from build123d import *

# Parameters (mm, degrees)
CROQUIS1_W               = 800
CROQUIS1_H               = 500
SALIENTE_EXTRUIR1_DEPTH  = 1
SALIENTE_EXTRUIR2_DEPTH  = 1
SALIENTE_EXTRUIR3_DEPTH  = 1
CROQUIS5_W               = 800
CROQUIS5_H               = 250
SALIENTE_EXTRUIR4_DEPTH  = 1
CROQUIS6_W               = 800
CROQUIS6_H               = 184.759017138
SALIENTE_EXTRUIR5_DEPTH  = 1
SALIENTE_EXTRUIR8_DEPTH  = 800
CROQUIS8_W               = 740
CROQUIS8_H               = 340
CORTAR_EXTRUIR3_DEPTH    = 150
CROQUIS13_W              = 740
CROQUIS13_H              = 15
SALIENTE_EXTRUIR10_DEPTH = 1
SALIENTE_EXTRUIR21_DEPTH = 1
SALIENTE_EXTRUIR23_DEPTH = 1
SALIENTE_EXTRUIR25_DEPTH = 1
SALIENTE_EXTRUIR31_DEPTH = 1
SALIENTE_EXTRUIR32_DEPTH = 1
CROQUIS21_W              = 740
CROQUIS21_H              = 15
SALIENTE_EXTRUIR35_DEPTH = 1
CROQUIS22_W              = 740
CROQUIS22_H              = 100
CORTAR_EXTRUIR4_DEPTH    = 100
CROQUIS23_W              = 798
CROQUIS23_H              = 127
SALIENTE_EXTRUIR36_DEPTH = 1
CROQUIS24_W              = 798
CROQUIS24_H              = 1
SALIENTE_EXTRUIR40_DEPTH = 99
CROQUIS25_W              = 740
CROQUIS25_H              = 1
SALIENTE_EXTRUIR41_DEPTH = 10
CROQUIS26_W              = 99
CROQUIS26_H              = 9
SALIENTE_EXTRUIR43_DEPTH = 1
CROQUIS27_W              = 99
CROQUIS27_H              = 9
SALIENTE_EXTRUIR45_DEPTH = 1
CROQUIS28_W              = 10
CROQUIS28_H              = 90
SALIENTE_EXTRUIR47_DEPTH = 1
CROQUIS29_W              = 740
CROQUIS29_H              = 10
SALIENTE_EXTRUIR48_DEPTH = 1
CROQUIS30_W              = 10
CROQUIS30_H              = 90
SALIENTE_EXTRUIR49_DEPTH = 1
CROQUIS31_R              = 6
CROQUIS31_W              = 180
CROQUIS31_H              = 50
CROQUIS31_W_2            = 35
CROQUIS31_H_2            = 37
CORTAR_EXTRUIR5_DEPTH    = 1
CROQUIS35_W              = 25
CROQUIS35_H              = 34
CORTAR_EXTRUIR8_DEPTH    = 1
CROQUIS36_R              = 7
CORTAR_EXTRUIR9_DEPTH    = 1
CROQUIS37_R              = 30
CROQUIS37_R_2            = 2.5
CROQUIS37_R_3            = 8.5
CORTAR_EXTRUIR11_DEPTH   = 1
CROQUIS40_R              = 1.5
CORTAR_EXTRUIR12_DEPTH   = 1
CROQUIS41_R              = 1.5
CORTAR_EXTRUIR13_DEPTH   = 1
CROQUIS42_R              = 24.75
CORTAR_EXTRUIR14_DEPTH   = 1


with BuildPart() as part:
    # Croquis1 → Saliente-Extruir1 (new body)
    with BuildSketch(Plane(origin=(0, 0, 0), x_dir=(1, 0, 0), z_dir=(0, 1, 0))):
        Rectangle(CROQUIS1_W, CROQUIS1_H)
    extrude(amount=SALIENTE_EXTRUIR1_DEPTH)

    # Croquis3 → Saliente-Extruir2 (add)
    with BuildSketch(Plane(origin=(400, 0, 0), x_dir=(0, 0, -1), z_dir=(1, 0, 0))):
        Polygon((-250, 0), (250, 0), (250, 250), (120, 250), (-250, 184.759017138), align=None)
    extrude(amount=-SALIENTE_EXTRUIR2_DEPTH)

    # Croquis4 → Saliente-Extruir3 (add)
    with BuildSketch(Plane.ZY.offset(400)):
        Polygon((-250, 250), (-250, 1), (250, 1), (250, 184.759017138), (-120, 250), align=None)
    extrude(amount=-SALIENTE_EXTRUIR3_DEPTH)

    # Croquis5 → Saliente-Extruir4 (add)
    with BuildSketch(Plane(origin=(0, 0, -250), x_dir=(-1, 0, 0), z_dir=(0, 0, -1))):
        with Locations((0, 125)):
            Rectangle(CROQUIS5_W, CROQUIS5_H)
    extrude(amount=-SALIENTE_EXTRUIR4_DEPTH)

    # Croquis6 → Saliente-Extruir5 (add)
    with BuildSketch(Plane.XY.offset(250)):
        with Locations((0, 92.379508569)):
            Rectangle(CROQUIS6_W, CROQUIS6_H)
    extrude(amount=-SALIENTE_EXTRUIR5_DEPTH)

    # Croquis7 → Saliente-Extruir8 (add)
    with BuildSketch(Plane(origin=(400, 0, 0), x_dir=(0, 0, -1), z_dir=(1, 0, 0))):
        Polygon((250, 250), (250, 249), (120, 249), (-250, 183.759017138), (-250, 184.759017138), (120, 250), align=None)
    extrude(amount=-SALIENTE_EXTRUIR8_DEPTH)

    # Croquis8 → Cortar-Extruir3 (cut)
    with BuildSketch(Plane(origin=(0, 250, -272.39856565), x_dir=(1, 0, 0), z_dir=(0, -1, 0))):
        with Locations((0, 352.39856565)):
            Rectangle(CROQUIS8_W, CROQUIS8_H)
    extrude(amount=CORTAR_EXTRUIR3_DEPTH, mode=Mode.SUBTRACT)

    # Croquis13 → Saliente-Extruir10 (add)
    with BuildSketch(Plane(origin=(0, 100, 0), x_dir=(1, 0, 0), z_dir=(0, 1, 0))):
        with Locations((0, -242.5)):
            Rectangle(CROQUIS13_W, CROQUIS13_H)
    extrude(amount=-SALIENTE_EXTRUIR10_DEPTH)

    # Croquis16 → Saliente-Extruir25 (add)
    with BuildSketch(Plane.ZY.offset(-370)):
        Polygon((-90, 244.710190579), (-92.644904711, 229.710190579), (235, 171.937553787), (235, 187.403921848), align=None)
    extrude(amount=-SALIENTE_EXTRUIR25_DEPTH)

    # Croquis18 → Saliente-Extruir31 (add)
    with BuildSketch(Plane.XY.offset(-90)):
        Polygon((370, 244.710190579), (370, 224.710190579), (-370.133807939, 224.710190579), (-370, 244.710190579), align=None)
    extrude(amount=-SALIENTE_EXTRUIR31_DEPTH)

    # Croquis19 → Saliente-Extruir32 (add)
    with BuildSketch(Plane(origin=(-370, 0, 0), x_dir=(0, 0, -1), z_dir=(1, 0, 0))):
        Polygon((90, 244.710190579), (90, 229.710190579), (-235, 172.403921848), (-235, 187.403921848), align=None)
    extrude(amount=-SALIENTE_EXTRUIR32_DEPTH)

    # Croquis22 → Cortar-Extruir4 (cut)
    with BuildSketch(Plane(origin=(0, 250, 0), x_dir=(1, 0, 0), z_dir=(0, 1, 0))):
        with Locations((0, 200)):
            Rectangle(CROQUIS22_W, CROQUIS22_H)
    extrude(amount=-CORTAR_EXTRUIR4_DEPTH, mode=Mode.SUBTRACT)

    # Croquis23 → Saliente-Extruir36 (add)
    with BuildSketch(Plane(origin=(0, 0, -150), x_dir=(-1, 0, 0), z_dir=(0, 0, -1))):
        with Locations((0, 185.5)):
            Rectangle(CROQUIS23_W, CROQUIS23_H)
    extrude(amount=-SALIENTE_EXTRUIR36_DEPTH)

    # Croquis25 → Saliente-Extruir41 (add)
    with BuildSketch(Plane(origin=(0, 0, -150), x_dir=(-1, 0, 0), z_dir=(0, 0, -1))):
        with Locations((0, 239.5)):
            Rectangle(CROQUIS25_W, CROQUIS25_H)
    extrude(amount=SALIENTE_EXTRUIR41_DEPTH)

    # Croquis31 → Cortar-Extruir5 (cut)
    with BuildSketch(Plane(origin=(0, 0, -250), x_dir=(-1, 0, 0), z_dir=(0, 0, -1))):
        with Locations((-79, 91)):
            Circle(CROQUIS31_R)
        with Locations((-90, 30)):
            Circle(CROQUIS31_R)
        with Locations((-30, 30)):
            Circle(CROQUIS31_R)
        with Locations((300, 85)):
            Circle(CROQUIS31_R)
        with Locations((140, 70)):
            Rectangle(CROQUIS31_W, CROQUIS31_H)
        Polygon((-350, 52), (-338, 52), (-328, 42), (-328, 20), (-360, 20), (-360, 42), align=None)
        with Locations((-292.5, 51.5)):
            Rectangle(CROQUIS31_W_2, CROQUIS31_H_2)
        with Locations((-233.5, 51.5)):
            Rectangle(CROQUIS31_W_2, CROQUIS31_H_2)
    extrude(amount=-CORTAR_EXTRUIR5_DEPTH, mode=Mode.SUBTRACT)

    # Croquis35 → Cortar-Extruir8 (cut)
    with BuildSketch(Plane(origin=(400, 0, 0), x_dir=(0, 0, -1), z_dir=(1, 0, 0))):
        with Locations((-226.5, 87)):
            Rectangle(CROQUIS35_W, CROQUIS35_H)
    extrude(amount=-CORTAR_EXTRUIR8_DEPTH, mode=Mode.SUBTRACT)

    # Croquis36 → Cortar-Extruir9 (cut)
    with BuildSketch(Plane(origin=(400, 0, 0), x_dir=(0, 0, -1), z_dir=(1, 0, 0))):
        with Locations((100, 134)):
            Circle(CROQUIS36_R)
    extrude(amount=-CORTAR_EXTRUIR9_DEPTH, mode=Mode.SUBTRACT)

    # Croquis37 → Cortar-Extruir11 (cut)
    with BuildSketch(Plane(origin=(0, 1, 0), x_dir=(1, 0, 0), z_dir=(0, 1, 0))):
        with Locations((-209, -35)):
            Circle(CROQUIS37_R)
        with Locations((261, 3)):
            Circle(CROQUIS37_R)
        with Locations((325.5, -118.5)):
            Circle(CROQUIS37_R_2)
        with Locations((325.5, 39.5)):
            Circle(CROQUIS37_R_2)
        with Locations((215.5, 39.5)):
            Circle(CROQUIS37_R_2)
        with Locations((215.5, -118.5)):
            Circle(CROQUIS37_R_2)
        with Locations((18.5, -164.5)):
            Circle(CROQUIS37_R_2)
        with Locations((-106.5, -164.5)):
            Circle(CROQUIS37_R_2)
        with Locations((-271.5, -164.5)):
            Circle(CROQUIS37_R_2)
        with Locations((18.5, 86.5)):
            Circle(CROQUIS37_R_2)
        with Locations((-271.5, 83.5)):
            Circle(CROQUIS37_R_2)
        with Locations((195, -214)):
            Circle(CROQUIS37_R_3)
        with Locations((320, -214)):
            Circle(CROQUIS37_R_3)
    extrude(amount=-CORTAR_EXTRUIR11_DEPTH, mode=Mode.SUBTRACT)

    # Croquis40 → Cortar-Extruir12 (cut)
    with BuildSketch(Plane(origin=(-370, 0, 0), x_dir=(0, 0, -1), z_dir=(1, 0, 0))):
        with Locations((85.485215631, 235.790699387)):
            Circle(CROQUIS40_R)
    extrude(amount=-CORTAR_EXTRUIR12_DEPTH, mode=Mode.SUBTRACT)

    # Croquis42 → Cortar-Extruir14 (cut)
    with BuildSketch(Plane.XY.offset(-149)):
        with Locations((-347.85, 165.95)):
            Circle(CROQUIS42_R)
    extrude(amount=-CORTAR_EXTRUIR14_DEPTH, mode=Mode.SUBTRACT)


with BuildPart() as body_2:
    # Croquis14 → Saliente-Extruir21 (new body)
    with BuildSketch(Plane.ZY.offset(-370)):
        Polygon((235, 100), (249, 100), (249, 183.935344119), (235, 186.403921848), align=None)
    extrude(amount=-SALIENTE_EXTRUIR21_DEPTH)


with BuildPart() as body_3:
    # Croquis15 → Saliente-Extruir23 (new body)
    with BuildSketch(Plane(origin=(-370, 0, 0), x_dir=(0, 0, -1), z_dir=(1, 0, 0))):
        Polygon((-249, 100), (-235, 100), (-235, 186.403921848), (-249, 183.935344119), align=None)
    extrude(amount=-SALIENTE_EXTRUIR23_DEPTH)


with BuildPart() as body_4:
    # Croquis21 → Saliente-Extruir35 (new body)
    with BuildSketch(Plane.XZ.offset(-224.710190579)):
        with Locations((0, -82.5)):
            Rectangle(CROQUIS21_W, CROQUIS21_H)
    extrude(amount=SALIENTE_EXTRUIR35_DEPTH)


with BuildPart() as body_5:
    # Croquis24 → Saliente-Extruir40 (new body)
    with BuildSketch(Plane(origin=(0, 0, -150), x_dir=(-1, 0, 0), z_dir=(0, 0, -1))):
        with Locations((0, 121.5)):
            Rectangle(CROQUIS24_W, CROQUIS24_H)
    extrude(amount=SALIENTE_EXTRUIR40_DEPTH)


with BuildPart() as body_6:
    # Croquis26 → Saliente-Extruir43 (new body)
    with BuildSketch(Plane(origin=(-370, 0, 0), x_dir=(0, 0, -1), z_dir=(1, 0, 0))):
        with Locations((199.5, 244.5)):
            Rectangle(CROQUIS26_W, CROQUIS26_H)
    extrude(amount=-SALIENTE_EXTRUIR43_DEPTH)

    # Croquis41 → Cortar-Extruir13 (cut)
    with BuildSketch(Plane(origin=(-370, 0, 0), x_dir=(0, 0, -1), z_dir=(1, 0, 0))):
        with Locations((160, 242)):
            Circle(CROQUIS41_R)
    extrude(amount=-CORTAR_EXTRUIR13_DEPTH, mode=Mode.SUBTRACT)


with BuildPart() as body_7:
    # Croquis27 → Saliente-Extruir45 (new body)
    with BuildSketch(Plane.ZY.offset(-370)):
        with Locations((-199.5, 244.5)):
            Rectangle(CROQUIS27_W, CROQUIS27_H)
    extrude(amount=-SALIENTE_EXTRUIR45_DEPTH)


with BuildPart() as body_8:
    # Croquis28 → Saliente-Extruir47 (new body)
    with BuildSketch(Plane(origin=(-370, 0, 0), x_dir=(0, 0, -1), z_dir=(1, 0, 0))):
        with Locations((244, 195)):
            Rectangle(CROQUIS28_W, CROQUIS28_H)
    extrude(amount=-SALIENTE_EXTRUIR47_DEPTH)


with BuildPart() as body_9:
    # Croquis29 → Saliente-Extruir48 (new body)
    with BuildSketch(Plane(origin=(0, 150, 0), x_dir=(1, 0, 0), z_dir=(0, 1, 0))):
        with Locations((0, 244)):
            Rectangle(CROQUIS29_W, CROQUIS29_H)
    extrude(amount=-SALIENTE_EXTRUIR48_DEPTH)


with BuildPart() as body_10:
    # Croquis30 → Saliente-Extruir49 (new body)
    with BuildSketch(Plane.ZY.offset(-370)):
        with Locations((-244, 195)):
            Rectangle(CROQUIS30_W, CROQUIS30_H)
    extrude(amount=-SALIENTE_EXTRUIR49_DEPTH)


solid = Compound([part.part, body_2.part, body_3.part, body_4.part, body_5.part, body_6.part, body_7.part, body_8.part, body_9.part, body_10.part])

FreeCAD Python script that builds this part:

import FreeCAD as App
import Part
import Sketcher
Q = App.Units.Quantity


def add_polygon(sketch, points):
    """Adds a closed chain of lines whose ends are joined by coincident constraints."""
    first, n = sketch.GeometryCount, len(points)
    for a, b in zip(points, points[1:] + points[:1]):
        sketch.addGeometry(Part.LineSegment(App.Vector(*a, 0), App.Vector(*b, 0)), False)
    for i in range(n):
        sketch.addConstraint(Sketcher.Constraint("Coincident", first + i, 2, first + (i + 1) % n, 1))

doc = App.newDocument("Part")
body = doc.addObject("PartDesign::Body", "Body")

sketch1 = body.newObject("Sketcher::SketchObject", "Sketch")
sketch1.AttachmentSupport = (doc.getObject("XZ_Plane"), [""])
sketch1.MapMode = "FlatFace"
add_polygon(sketch1, [(-400, -250), (-400, 250), (400, 250), (400, -250)])
sketch1.addConstraint(Sketcher.Constraint("Vertical", 0))
sketch1.addConstraint(Sketcher.Constraint("Horizontal", 1))
sketch1.addConstraint(Sketcher.Constraint("Vertical", 2))
sketch1.addConstraint(Sketcher.Constraint("Horizontal", 3))
sketch1.addConstraint(Sketcher.Constraint("Symmetric", 0, 2, 2, 2, -1, 1))
sketch1.addConstraint(Sketcher.Constraint("DistanceX", 1, 1, 1, 2, Q("800 mm")))
sketch1.addConstraint(Sketcher.Constraint("DistanceY", 0, 1, 0, 2, Q("500 mm")))
pad1 = body.newObject("PartDesign::Pad", "Pad")
pad1.Profile = sketch1
pad1.Length = 1
pad1.Reversed = True

sketch2 = body.newObject("Sketcher::SketchObject", "Sketch001")
sketch2.AttachmentSupport = (doc.getObject("YZ_Plane"), [""])
sketch2.MapMode = "FlatFace"
sketch2.AttachmentOffset = App.Placement(App.Vector(0, 0, 400), App.Rotation())
add_polygon(sketch2, [(0, 250), (0, -250), (250, -250), (250, -120), (185, 250)])
sketch2.addConstraint(Sketcher.Constraint("Vertical", 0))
sketch2.addConstraint(Sketcher.Constraint("Horizontal", 1))
sketch2.addConstraint(Sketcher.Constraint("Vertical", 2))
sketch2.addConstraint(Sketcher.Constraint("Horizontal", 4))
sketch2.addConstraint(Sketcher.Constraint("Symmetric", 0, 2, 4, 2, -1, 1))
sketch2.addConstraint(Sketcher.Constraint("DistanceX", 1, 1, 1, 2, Q("250 mm")))
sketch2.addConstraint(Sketcher.Constraint("DistanceY", 0, 2, 0, 1, Q("500 mm")))
sketch2.addConstraint(Sketcher.Constraint("DistanceY", 2, 1, 2, 2, Q("130 mm")))
sketch2.addConstraint(Sketcher.Constraint("Angle", 3, Q("100 deg")))
pad2 = body.newObject("PartDesign::Pad", "Pad001")
pad2.Profile = sketch2
pad2.Length = 1
pad2.Reversed = True

sketch3 = body.newObject("Sketcher::SketchObject", "Sketch002")
sketch3.AttachmentSupport = (doc.getObject("YZ_Plane"), [""])
sketch3.MapMode = "FlatFace"
sketch3.AttachmentOffset = App.Placement(App.Vector(0, 0, -400), App.Rotation())
add_polygon(sketch3, [(250, -250), (1, -250), (1, 250), (185, 250), (250, -120)])
sketch3.addConstraint(Sketcher.Constraint("Horizontal", 0))
sketch3.addConstraint(Sketcher.Constraint("Vertical", 1))
sketch3.addConstraint(Sketcher.Constraint("Horizontal", 2))
sketch3.addConstraint(Sketcher.Constraint("Vertical", 4))
sketch3.addConstraint(Sketcher.Constraint("DistanceX", 0, 2, 0, 1, Q("249 mm")))
sketch3.addConstraint(Sketcher.Constraint("DistanceY", 1, 1, 1, 2, Q("500 mm")))
sketch3.addConstraint(Sketcher.Constraint("DistanceY", 4, 2, 4, 1, Q("130 mm")))
sketch3.addConstraint(Sketcher.Constraint("Angle", 3, Q("-80 deg")))
sketch3.addConstraint(Sketcher.Constraint("DistanceX", -1, 1, 0, 2, Q("1 mm")))
sketch3.addConstraint(Sketcher.Constraint("DistanceY", 0, 2, -1, 1, Q("250 mm")))
pad3 = body.newObject("PartDesign::Pad", "Pad002")
pad3.Profile = sketch3
pad3.Length = 1

sketch4 = body.newObject("Sketcher::SketchObject", "Sketch003")
sketch4.AttachmentSupport = (doc.getObject("XY_Plane"), [""])
sketch4.MapMode = "FlatFace"
sketch4.AttachmentOffset = App.Placement(App.Vector(0, 0, -250), App.Rotation())
add_polygon(sketch4, [(400, 250), (400, 0), (-400, 0), (-400, 250)])
sketch4.addConstraint(Sketcher.Constraint("Vertical", 0))
sketch4.addConstraint(Sketcher.Constraint("Horizontal", 1))
sketch4.addConstraint(Sketcher.Constraint("Vertical", 2))
sketch4.addConstraint(Sketcher.Constraint("Horizontal", 3))
sketch4.addConstraint(Sketcher.Constraint("Symmetric", 0, 2, 1, 2, -1, 1))
sketch4.addConstraint(Sketcher.Constraint("DistanceX", 1, 2, 1, 1, Q("800 mm")))
sketch4.addConstraint(Sketcher.Constraint("DistanceY", 0, 2, 0, 1, Q("250 mm")))
pad4 = body.newObject("PartDesign::Pad", "Pad003")
pad4.Profile = sketch4
pad4.Length = 1

sketch5 = body.newObject("Sketcher::SketchObject", "Sketch004")
sketch5.AttachmentSupport = (doc.getObject("XY_Plane"), [""])
sketch5.MapMode = "FlatFace"
sketch5.AttachmentOffset = App.Placement(App.Vector(0, 0, 250), App.Rotation())
add_polygon(sketch5, [(-400, 185), (-400, 0), (400, 0), (400, 185)])
sketch5.addConstraint(Sketcher.Constraint("Vertical", 0))
sketch5.addConstraint(Sketcher.Constraint("Horizontal", 1))
sketch5.addConstraint(Sketcher.Constraint("Vertical", 2))
sketch5.addConstraint(Sketcher.Constraint("Horizontal", 3))
sketch5.addConstraint(Sketcher.Constraint("Symmetric", 0, 2, 1, 2, -1, 1))
sketch5.addConstraint(Sketcher.Constraint("DistanceX", 1, 1, 1, 2, Q("800 mm")))
sketch5.addConstraint(Sketcher.Constraint("DistanceY", 0, 2, 0, 1, Q("184.759017 mm")))
pad5 = body.newObject("PartDesign::Pad", "Pad004")
pad5.Profile = sketch5
pad5.Length = 1
pad5.Reversed = True

sketch6 = body.newObject("Sketcher::SketchObject", "Sketch005")
sketch6.AttachmentSupport = (doc.getObject("YZ_Plane"), [""])
sketch6.MapMode = "FlatFace"
sketch6.AttachmentOffset = App.Placement(App.Vector(0, 0, 400), App.Rotation())
add_polygon(sketch6, [(249, -250), (250, -250), (250, -120), (184.8, 250), (183.8, 250), (249, -120)])
sketch6.addConstraint(Sketcher.Constraint("Horizontal", 0))
sketch6.addConstraint(Sketcher.Constraint("Vertical", 1))
sketch6.addConstraint(Sketcher.Constraint("Horizontal", 3))
sketch6.addConstraint(Sketcher.Constraint("Vertical", 5))
sketch6.addConstraint(Sketcher.Constraint("Parallel", 2, 4))
sketch6.addConstraint(Sketcher.Constraint("Horizontal", 1, 2, 4, 2))
sketch6.addConstraint(Sketcher.Constraint("DistanceX", 0, 1, 0, 2, Q("1 mm")))
sketch6.addConstraint(Sketcher.Constraint("DistanceY", 1, 1, 1, 2, Q("130 mm")))
sketch6.addConstraint(Sketcher.Constraint("Angle", 2, Q("100 deg")))
sketch6.addConstraint(Sketcher.Constraint("DistanceX", -1, 1, 0, 2, Q("250 mm")))
sketch6.addConstraint(Sketcher.Constraint("DistanceY", 0, 2, -1, 1, Q("250 mm")))
sketch6.addConstraint(Sketcher.Constraint("DistanceY", -1, 1, 2, 2, Q("250 mm")))
pad6 = body.newObject("PartDesign::Pad", "Pad005")
pad6.Profile = sketch6
pad6.Length = 800
pad6.Reversed = True

sketch7 = body.newObject("Sketcher::SketchObject", "Sketch006")
sketch7.AttachmentSupport = (doc.getObject("XZ_Plane"), [""])
sketch7.MapMode = "FlatFace"
sketch7.AttachmentOffset = App.Placement(App.Vector(0, 0, -250), App.Rotation())
add_polygon(sketch7, [(-370, 250), (-370, -90), (370, -90), (370, 250)])
sketch7.addConstraint(Sketcher.Constraint("Vertical", 0))
sketch7.addConstraint(Sketcher.Constraint("Horizontal", 1))
sketch7.addConstraint(Sketcher.Constraint("Vertical", 2))
sketch7.addConstraint(Sketcher.Constraint("Horizontal", 3))
sketch7.addConstraint(Sketcher.Constraint("DistanceX", 1, 1, 1, 2, Q("740 mm")))
sketch7.addConstraint(Sketcher.Constraint("DistanceY", 0, 2, 0, 1, Q("340 mm")))
sketch7.addConstraint(Sketcher.Constraint("DistanceX", 0, 2, -1, 1, Q("370 mm")))
sketch7.addConstraint(Sketcher.Constraint("DistanceY", 0, 2, -1, 1, Q("90 mm")))
pocket1 = body.newObject("PartDesign::Pocket", "Pocket")
pocket1.Profile = sketch7
pocket1.Length = 150
pocket1.Reversed = True

sketch8 = body.newObject("Sketcher::SketchObject", "Sketch007")
sketch8.AttachmentSupport = (doc.getObject("XZ_Plane"), [""])
sketch8.MapMode = "FlatFace"
sketch8.AttachmentOffset = App.Placement(App.Vector(0, 0, -100), App.Rotation())
add_polygon(sketch8, [(-370, 235), (-370, 250), (370, 250), (370, 235)])
sketch8.addConstraint(Sketcher.Constraint("Vertical", 0))
sketch8.addConstraint(Sketcher.Constraint("Horizontal", 1))
sketch8.addConstraint(Sketcher.Constraint("Vertical", 2))
sketch8.addConstraint(Sketcher.Constraint("Horizontal", 3))
sketch8.addConstraint(Sketcher.Constraint("DistanceX", 1, 1, 1, 2, Q("740 mm")))
sketch8.addConstraint(Sketcher.Constraint("DistanceY", 0, 1, 0, 2, Q("15 mm")))
sketch8.addConstraint(Sketcher.Constraint("DistanceX", 0, 2, -1, 1, Q("370 mm")))
sketch8.addConstraint(Sketcher.Constraint("DistanceY", -1, 1, 0, 2, Q("250 mm")))
pad7 = body.newObject("PartDesign::Pad", "Pad006")
pad7.Profile = sketch8
pad7.Length = 1

sketch9 = body.newObject("Sketcher::SketchObject", "Sketch008")
sketch9.AttachmentSupport = (doc.getObject("YZ_Plane"), [""])
sketch9.MapMode = "FlatFace"
sketch9.AttachmentOffset = App.Placement(App.Vector(0, 0, 370), App.Rotation())
add_polygon(sketch9, [(245, -90), (230, -93), (172, 235), (187, 235)])
sketch9.addConstraint(Sketcher.Constraint("Horizontal", 2))
sketch9.addConstraint(Sketcher.Constraint("Perpendicular", 0, 1))
sketch9.addConstraint(Sketcher.Constraint("Parallel", 1, 3))
sketch9.addConstraint(Sketcher.Constraint("Angle", 0, Q("-170 deg")))
sketch9.addConstraint(Sketcher.Constraint("DistanceY", -1, 1, 1, 2, Q("235 mm")))
sketch9.addConstraint(Sketcher.Constraint("DistanceY", 3, 2, -1, 1, Q("90 mm")))
sketch9.addConstraint(Sketcher.Constraint("DistanceX", 0, 2, 3, 2, Q("15 mm")))
sketch9.addConstraint(Sketcher.Constraint("DistanceX", -1, 1, 0, 2, Q("229.710191 mm")))
pad8 = body.newObject("PartDesign::Pad", "Pad007")
pad8.Profile = sketch9
pad8.Length = 1

sketch10 = body.newObject("Sketcher::SketchObject", "Sketch009")
sketch10.AttachmentSupport = (doc.getObject("XY_Plane"), [""])
sketch10.MapMode = "FlatFace"
sketch10.AttachmentOffset = App.Placement(App.Vector(0, 0, -90), App.Rotation())
add_polygon(sketch10, [(370, 225), (370, 245), (-370, 245), (-370, 225)])
sketch10.addConstraint(Sketcher.Constraint("Vertical", 0))
sketch10.addConstraint(Sketcher.Constraint("Horizontal", 1))
sketch10.addConstraint(Sketcher.Constraint("Horizontal", 3))
sketch10.addConstraint(Sketcher.Constraint("DistanceX", 1, 2, 1, 1, Q("740 mm")))
sketch10.addConstraint(Sketcher.Constraint("DistanceY", 0, 1, 0, 2, Q("20 mm")))
sketch10.addConstraint(Sketcher.Constraint("DistanceX", -1, 1, 0, 2, Q("370 mm")))
sketch10.addConstraint(Sketcher.Constraint("DistanceX", 3, 1, 3, 2, Q("740.133808 mm")))
sketch10.addConstraint(Sketcher.Constraint("DistanceY", -1, 1, 0, 2, Q("244.710191 mm")))
pad9 = body.newObject("PartDesign::Pad", "Pad008")
pad9.Profile = sketch10
pad9.Length = 1
pad9.Reversed = True

sketch11 = body.newObject("Sketcher::SketchObject", "Sketch010")
sketch11.AttachmentSupport = (doc.getObject("YZ_Plane"), [""])
sketch11.MapMode = "FlatFace"
sketch11.AttachmentOffset = App.Placement(App.Vector(0, 0, -370), App.Rotation())
add_polygon(sketch11, [(230, -90), (245, -90), (187, 235), (172, 235)])
sketch11.addConstraint(Sketcher.Constraint("Horizontal", 0))
sketch11.addConstraint(Sketcher.Constraint("Horizontal", 2))
sketch11.addConstraint(Sketcher.Constraint("Parallel", 1, 3))
sketch11.addConstraint(Sketcher.Constraint("DistanceX", 0, 1, 0, 2, Q("15 mm")))
sketch11.addConstraint(Sketcher.Constraint("Angle", 1, Q("100 deg")))
sketch11.addConstraint(Sketcher.Constraint("DistanceY", 0, 2, -1, 1, Q("90 mm")))
sketch11.addConstraint(Sketcher.Constraint("DistanceY", -1, 1, 1, 2, Q("235 mm")))
sketch11.addConstraint(Sketcher.Constraint("DistanceX", -1, 1, 0, 2, Q("244.710191 mm")))
pad10 = body.newObject("PartDesign::Pad", "Pad009")
pad10.Profile = sketch11
pad10.Length = 1
pad10.Reversed = True

sketch12 = body.newObject("Sketcher::SketchObject", "Sketch011")
sketch12.AttachmentSupport = (doc.getObject("XZ_Plane"), [""])
sketch12.MapMode = "FlatFace"
sketch12.AttachmentOffset = App.Placement(App.Vector(0, 0, -250), App.Rotation())
add_polygon(sketch12, [(-370, -250), (-370, -150), (370, -150), (370, -250)])
sketch12.addConstraint(Sketcher.Constraint("Vertical", 0))
sketch12.addConstraint(Sketcher.Constraint("Horizontal", 1))
sketch12.addConstraint(Sketcher.Constraint("Vertical", 2))
sketch12.addConstraint(Sketcher.Constraint("Horizontal", 3))
sketch12.addConstraint(Sketcher.Constraint("DistanceX", 1, 1, 1, 2, Q("740 mm")))
sketch12.addConstraint(Sketcher.Constraint("DistanceY", 0, 1, 0, 2, Q("100 mm")))
sketch12.addConstraint(Sketcher.Constraint("DistanceX", 0, 2, -1, 1, Q("370 mm")))
sketch12.addConstraint(Sketcher.Constraint("DistanceY", 0, 2, -1, 1, Q("150 mm")))
pocket2 = body.newObject("PartDesign::Pocket", "Pocket001")
pocket2.Profile = sketch12
pocket2.Length = 100
pocket2.Reversed = True

sketch13 = body.newObject("Sketcher::SketchObject", "Sketch012")
sketch13.AttachmentSupport = (doc.getObject("XY_Plane"), [""])
sketch13.MapMode = "FlatFace"
sketch13.AttachmentOffset = App.Placement(App.Vector(0, 0, -150), App.Rotation())
add_polygon(sketch13, [(399, 249), (399, 122), (-399, 122), (-399, 249)])
sketch13.addConstraint(Sketcher.Constraint("Vertical", 0))
sketch13.addConstraint(Sketcher.Constraint("Horizontal", 1))
sketch13.addConstraint(Sketcher.Constraint("Vertical", 2))
sketch13.addConstraint(Sketcher.Constraint("Horizontal", 3))
sketch13.addConstraint(Sketcher.Constraint("DistanceX", 1, 2, 1, 1, Q("798 mm")))
sketch13.addConstraint(Sketcher.Constraint("DistanceY", 0, 2, 0, 1, Q("127 mm")))
sketch13.addConstraint(Sketcher.Constraint("DistanceX", -1, 1, 0, 2, Q("399 mm")))
sketch13.addConstraint(Sketcher.Constraint("DistanceY", -1, 1, 0, 2, Q("122 mm")))
pad11 = body.newObject("PartDesign::Pad", "Pad010")
pad11.Profile = sketch13
pad11.Length = 1

sketch14 = body.newObject("Sketcher::SketchObject", "Sketch013")
sketch14.AttachmentSupport = (doc.getObject("XY_Plane"), [""])
sketch14.MapMode = "FlatFace"
sketch14.AttachmentOffset = App.Placement(App.Vector(0, 0, -150), App.Rotation())
add_polygon(sketch14, [(370, 240), (370, 239), (-370, 239), (-370, 240)])
sketch14.addConstraint(Sketcher.Constraint("Vertical", 0))
sketch14.addConstraint(Sketcher.Constraint("Horizontal", 1))
sketch14.addConstraint(Sketcher.Constraint("Vertical", 2))
sketch14.addConstraint(Sketcher.Constraint("Horizontal", 3))
sketch14.addConstraint(Sketcher.Constraint("DistanceX", 1, 2, 1, 1, Q("740 mm")))
sketch14.addConstraint(Sketcher.Constraint("DistanceY", 0, 2, 0, 1, Q("1 mm")))
sketch14.addConstraint(Sketcher.Constraint("DistanceX", -1, 1, 0, 2, Q("370 mm")))
sketch14.addConstraint(Sketcher.Constraint("DistanceY", -1, 1, 0, 2, Q("239 mm")))
pad12 = body.newObject("PartDesign::Pad", "Pad011")
pad12.Profile = sketch14
pad12.Length = 10
pad12.Reversed = True

sketch15 = body.newObject("Sketcher::SketchObject", "Sketch014")
sketch15.AttachmentSupport = (doc.getObject("XY_Plane"), [""])
sketch15.MapMode = "FlatFace"
sketch15.AttachmentOffset = App.Placement(App.Vector(0, 0, -250), App.Rotation())
sketch15.addGeometry(Part.Circle(App.Vector(79, 91, 0), App.Vector(0, 0, 1), 6), False)
sketch15.addGeometry(Part.Circle(App.Vector(90, 30, 0), App.Vector(0, 0, 1), 6), False)
sketch15.addGeometry(Part.Circle(App.Vector(30, 30, 0), App.Vector(0, 0, 1), 6), False)
sketch15.addGeometry(Part.Circle(App.Vector(-300, 85, 0), App.Vector(0, 0, 1), 6), False)
add_polygon(sketch15, [(-50, 95), (-50, 45), (-230, 45), (-230, 95)])
add_polygon(sketch15, [(338, 52), (350, 52), (360, 42), (360, 20), (328, 20), (328, 42)])
add_polygon(sketch15, [(310, 70), (310, 33), (275, 33), (275, 70)])
add_polygon(sketch15, [(251, 70), (251, 33), (216, 33), (216, 70)])
sketch15.addConstraint(Sketcher.Constraint("Vertical", 4))
sketch15.addConstraint(Sketcher.Constraint("Horizontal", 5))
sketch15.addConstraint(Sketcher.Constraint("Vertical", 6))
sketch15.addConstraint(Sketcher.Constraint("Horizontal", 7))
sketch15.addConstraint(Sketcher.Constraint("Horizontal", 8))
sketch15.addConstraint(Sketcher.Constraint("Vertical", 10))
sketch15.addConstraint(Sketcher.Constraint("Horizontal", 11))
sketch15.addConstraint(Sketcher.Constraint("Vertical", 12))
sketch15.addConstraint(Sketcher.Constraint("Vertical", 14))
sketch15.addConstraint(Sketcher.Constraint("Horizontal", 15))
sketch15.addConstraint(Sketcher.Constraint("Vertical", 16))
sketch15.addConstraint(Sketcher.Constraint("Horizontal", 17))
sketch15.addConstraint(Sketcher.Constraint("Vertical", 18))
sketch15.addConstraint(Sketcher.Constraint("Horizontal", 19))
sketch15.addConstraint(Sketcher.Constraint("Vertical", 20))
sketch15.addConstraint(Sketcher.Constraint("Horizontal", 21))
sketch15.addConstraint(Sketcher.Constraint("Equal", 0, 1))
sketch15.addConstraint(Sketcher.Constraint("Equal", 1, 2))
sketch15.addConstraint(Sketcher.Constraint("Equal", 2, 3))
sketch15.addConstraint(Sketcher.Constraint("Perpendicular", 9, 13))
sketch15.addConstraint(Sketcher.Constraint("Horizontal", 1, 3, 2, 3))
sketch15.addConstraint(Sketcher.Constraint("Horizontal", 9, 2, 12, 2))
sketch15.addConstraint(Sketcher.Constraint("Horizontal", 15, 2, 18, 2))
sketch15.addConstraint(Sketcher.Constraint("Horizontal", 17, 2, 20, 2))
sketch15.addConstraint(Sketcher.Constraint("Equal", 17, 19))
sketch15.addConstraint(Sketcher.Constraint("Equal", 9, 13))
sketch15.addConstraint(Sketcher.Constraint("Diameter", 0, Q("12 mm")))
sketch15.addConstraint(Sketcher.Constraint("DistanceX", 5, 2, 5, 1, Q("180 mm")))
sketch15.addConstraint(Sketcher.Constraint("DistanceX", 8, 1, 8, 2, Q("12 mm")))
sketch15.addConstraint(Sketcher.Constraint("DistanceX", 11, 2, 11, 1, Q("32 mm")))
sketch15.addConstraint(Sketcher.Constraint("DistanceX", 15, 2, 15, 1, Q("35 mm")))
sketch15.addConstraint(Sketcher.Constraint("DistanceY", 4, 2, 4, 1, Q("50 mm")))
sketch15.addConstraint(Sketcher.Constraint("DistanceY", 10, 2, 10, 1, Q("22 mm")))
sketch15.addConstraint(Sketcher.Constraint("DistanceY", 14, 2, 14, 1, Q("37 mm")))
sketch15.addConstraint(Sketcher.Constraint("DistanceX", -1, 1, 0, 3, Q("79 mm")))
sketch15.addConstraint(Sketcher.Constraint("DistanceY", -1, 1, 0, 3, Q("91 mm")))
sketch15.addConstraint(Sketcher.Constraint("DistanceX", -1, 1, 1, 3, Q("90 mm")))
sketch15.addConstraint(Sketcher.Constraint("DistanceY", -1, 1, 1, 3, Q("30 mm")))
sketch15.addConstraint(Sketcher.Constraint("DistanceX", -1, 1, 2, 3, Q("30 mm")))
sketch15.addConstraint(Sketcher.Constraint("DistanceX", 3, 3, -1, 1, Q("300 mm")))
sketch15.addConstraint(Sketcher.Constraint("DistanceY", -1, 1, 3, 3, Q("85 mm")))
sketch15.addConstraint(Sketcher.Constraint("DistanceX", 4, 2, -1, 1, Q("50 mm")))
sketch15.addConstraint(Sketcher.Constraint("DistanceY", -1, 1, 4, 2, Q("45 mm")))
sketch15.addConstraint(Sketcher.Constraint("DistanceX", -1, 1, 8, 2, Q("350 mm")))
sketch15.addConstraint(Sketcher.Constraint("DistanceY", -1, 1, 8, 2, Q("52 mm")))
sketch15.addConstraint(Sketcher.Constraint("DistanceX", -1, 1, 14, 2, Q("310 mm")))
sketch15.addConstraint(Sketcher.Constraint("DistanceY", -1, 1, 14, 2, Q("33 mm")))
sketch15.addConstraint(Sketcher.Constraint("DistanceX", -1, 1, 18, 2, Q("251 mm")))
pocket3 = body.newObject("PartDesign::Pocket", "Pocket002")
pocket3.Profile = sketch15
pocket3.Length = 1
pocket3.Reversed = True

sketch16 = body.newObject("Sketcher::SketchObject", "Sketch015")
sketch16.AttachmentSupport = (doc.getObject("YZ_Plane"), [""])
sketch16.MapMode = "FlatFace"
sketch16.AttachmentOffset = App.Placement(App.Vector(0, 0, 400), App.Rotation())
add_polygon(sketch16, [(104, 239), (70, 239), (70, 214), (104, 214)])
sketch16.addConstraint(Sketcher.Constraint("Horizontal", 0))
sketch16.addConstraint(Sketcher.Constraint("Vertical", 1))
sketch16.addConstraint(Sketcher.Constraint("Horizontal", 2))
sketch16.addConstraint(Sketcher.Constraint("Vertical", 3))
sketch16.addConstraint(Sketcher.Constraint("DistanceX", 0, 2, 0, 1, Q("34 mm")))
sketch16.addConstraint(Sketcher.Constraint("DistanceY", 1, 2, 1, 1, Q("25 mm")))
sketch16.addConstraint(Sketcher.Constraint("DistanceX", -1, 1, 0, 2, Q("70 mm")))
sketch16.addConstraint(Sketcher.Constraint("DistanceY", -1, 1, 0, 2, Q("239 mm")))
pocket4 = body.newObject("PartDesign::Pocket", "Pocket003")
pocket4.Profile = sketch16
pocket4.Length = 1

sketch17 = body.newObject("Sketcher::SketchObject", "Sketch016")
sketch17.AttachmentSupport = (doc.getObject("YZ_Plane"), [""])
sketch17.MapMode = "FlatFace"
sketch17.AttachmentOffset = App.Placement(App.Vector(0, 0, 400), App.Rotation())
sketch17.addGeometry(Part.Circle(App.Vector(134, -100, 0), App.Vector(0, 0, 1), 7), False)
sketch17.addConstraint(Sketcher.Constraint("Diameter", 0, Q("14 mm")))
sketch17.addConstraint(Sketcher.Constraint("DistanceX", -1, 1, 0, 3, Q("134 mm")))
sketch17.addConstraint(Sketcher.Constraint("DistanceY", 0, 3, -1, 1, Q("100 mm")))
pocket5 = body.newObject("PartDesign::Pocket", "Pocket004")
pocket5.Profile = sketch17
pocket5.Length = 1

sketch18 = body.newObject("Sketcher::SketchObject", "Sketch017")
sketch18.AttachmentSupport = (doc.getObject("XZ_Plane"), [""])
sketch18.MapMode = "FlatFace"
sketch18.AttachmentOffset = App.Placement(App.Vector(0, 0, -1), App.Rotation())
sketch18.addGeometry(Part.Circle(App.Vector(-209, 35, 0), App.Vector(0, 0, 1), 30), False)
sketch18.addGeometry(Part.Circle(App.Vector(261, -3, 0), App.Vector(0, 0, 1), 30), False)
sketch18.addGeometry(Part.Circle(App.Vector(325.5, 118.5, 0), App.Vector(0, 0, 1), 2.5), False)
sketch18.addGeometry(Part.Circle(App.Vector(325.5, -39.5, 0), App.Vector(0, 0, 1), 2.5), False)
sketch18.addGeometry(Part.Circle(App.Vector(215.5, -39.5, 0), App.Vector(0, 0, 1), 2.5), False)
sketch18.addGeometry(Part.Circle(App.Vector(215.5, 118.5, 0), App.Vector(0, 0, 1), 2.5), False)
sketch18.addGeometry(Part.Circle(App.Vector(18.5, 164.5, 0), App.Vector(0, 0, 1), 2.5), False)
sketch18.addGeometry(Part.Circle(App.Vector(-106.5, 164.5, 0), App.Vector(0, 0, 1), 2.5), False)
sketch18.addGeometry(Part.Circle(App.Vector(-271.5, 164.5, 0), App.Vector(0, 0, 1), 2.5), False)
sketch18.addGeometry(Part.Circle(App.Vector(18.5, -86.5, 0), App.Vector(0, 0, 1), 2.5), False)
sketch18.addGeometry(Part.Circle(App.Vector(-271.5, -83.5, 0), App.Vector(0, 0, 1), 2.5), False)
sketch18.addGeometry(Part.Circle(App.Vector(195, 214, 0), App.Vector(0, 0, 1), 8.5), False)
sketch18.addGeometry(Part.Circle(App.Vector(320, 214, 0), App.Vector(0, 0, 1), 8.5), False)
sketch18.addConstraint(Sketcher.Constraint("Equal", 0, 1))
sketch18.addConstraint(Sketcher.Constraint("Equal", 2, 3))
sketch18.addConstraint(Sketcher.Constraint("Equal", 3, 4))
sketch18.addConstraint(Sketcher.Constraint("Equal", 4, 5))
sketch18.addConstraint(Sketcher.Constraint("Equal", 5, 6))
sketch18.addConstraint(Sketcher.Constraint("Equal", 6, 7))
sketch18.addConstraint(Sketcher.Constraint("Equal", 7, 8))
sketch18.addConstraint(Sketcher.Constraint("Equal", 8, 9))
sketch18.addConstraint(Sketcher.Constraint("Equal", 9, 10))
sketch18.addConstraint(Sketcher.Constraint("Equal", 11, 12))
sketch18.addConstraint(Sketcher.Constraint("Horizontal", 3, 3, 4, 3))
sketch18.addConstraint(Sketcher.Constraint("Horizontal", 2, 3, 5, 3))
sketch18.addConstraint(Sketcher.Constraint("Horizontal", 6, 3, 7, 3))
sketch18.addConstraint(Sketcher.Constraint("Horizontal", 7, 3, 8, 3))
sketch18.addConstraint(Sketcher.Constraint("Horizontal", 11, 3, 12, 3))
sketch18.addConstraint(Sketcher.Constraint("Vertical", 2, 3, 3, 3))
sketch18.addConstraint(Sketcher.Constraint("Vertical", 4, 3, 5, 3))
sketch18.addConstraint(Sketcher.Constraint("Vertical", 6, 3, 9, 3))
sketch18.addConstraint(Sketcher.Constraint("Vertical", 8, 3, 10, 3))
sketch18.addConstraint(Sketcher.Constraint("Diameter", 0, Q("60 mm")))
sketch18.addConstraint(Sketcher.Constraint("Diameter", 2, Q("5 mm")))
sketch18.addConstraint(Sketcher.Constraint("Diameter", 11, Q("17 mm")))
sketch18.addConstraint(Sketcher.Constraint("DistanceX", 0, 3, -1, 1, Q("209 mm")))
sketch18.addConstraint(Sketcher.Constraint("DistanceY", -1, 1, 0, 3, Q("35 mm")))
sketch18.addConstraint(Sketcher.Constraint("DistanceX", -1, 1, 1, 3, Q("261 mm")))
sketch18.addConstraint(Sketcher.Constraint("DistanceY", 1, 3, -1, 1, Q("3 mm")))
sketch18.addConstraint(Sketcher.Constraint("DistanceX", -1, 1, 11, 3, Q("195 mm")))
sketch18.addConstraint(Sketcher.Constraint("DistanceY", -1, 1, 11, 3, Q("214 mm")))
sketch18.addConstraint(Sketcher.Constraint("DistanceX", -1, 1, 12, 3, Q("320 mm")))
sketch18.addConstraint(Sketcher.Constraint("DistanceY", 3, 3, 2, 3, Q("158 mm")))
sketch18.addConstraint(Sketcher.Constraint("DistanceX", 4, 3, 3, 3, Q("110 mm")))
sketch18.addConstraint(Sketcher.Constraint("DistanceX", 6, 3, 5, 3, Q("197 mm")))
sketch18.addConstraint(Sketcher.Constraint("DistanceY", 5, 3, 6, 3, Q("46 mm")))
sketch18.addConstraint(Sketcher.Constraint("DistanceX", 7, 3, 6, 3, Q("125 mm")))
sketch18.addConstraint(Sketcher.Constraint("DistanceX", 8, 3, 7, 3, Q("165 mm")))
sketch18.addConstraint(Sketcher.Constraint("DistanceY", 9, 3, 4, 3, Q("47 mm")))
sketch18.addConstraint(Sketcher.Constraint("DistanceY", 10, 3, 8, 3, Q("248 mm")))
sketch18.addConstraint(Sketcher.Constraint("DistanceX", -1, 1, 2, 3, Q("325.5 mm")))
sketch18.addConstraint(Sketcher.Constraint("DistanceY", -1, 1, 2, 3, Q("118.5 mm")))
pocket6 = body.newObject("PartDesign::Pocket", "Pocket005")
pocket6.Profile = sketch18
pocket6.Length = 1
pocket6.Reversed = True

sketch19 = body.newObject("Sketcher::SketchObject", "Sketch018")
sketch19.AttachmentSupport = (doc.getObject("YZ_Plane"), [""])
sketch19.MapMode = "FlatFace"
sketch19.AttachmentOffset = App.Placement(App.Vector(0, 0, -370), App.Rotation())
sketch19.addGeometry(Part.Circle(App.Vector(235.8, -85.5, 0), App.Vector(0, 0, 1), 1.5), False)
sketch19.addConstraint(Sketcher.Constraint("Diameter", 0, Q("3 mm")))
sketch19.addConstraint(Sketcher.Constraint("DistanceX", -1, 1, 0, 3, Q("235.790699 mm")))
sketch19.addConstraint(Sketcher.Constraint("DistanceY", 0, 3, -1, 1, Q("85.485216 mm")))
pocket7 = body.newObject("PartDesign::Pocket", "Pocket006")
pocket7.Profile = sketch19
pocket7.Length = 1

sketch20 = body.newObject("Sketcher::SketchObject", "Sketch019")
sketch20.AttachmentSupport = (doc.getObject("XY_Plane"), [""])
sketch20.MapMode = "FlatFace"
sketch20.AttachmentOffset = App.Placement(App.Vector(0, 0, -149), App.Rotation())
sketch20.addGeometry(Part.Circle(App.Vector(-348, 166, 0), App.Vector(0, 0, 1), 25), False)
sketch20.addConstraint(Sketcher.Constraint("Diameter", 0, Q("49.5 mm")))
sketch20.addConstraint(Sketcher.Constraint("DistanceX", 0, 3, -1, 1, Q("347.85 mm")))
sketch20.addConstraint(Sketcher.Constraint("DistanceY", -1, 1, 0, 3, Q("165.95 mm")))
pocket8 = body.newObject("PartDesign::Pocket", "Pocket007")
pocket8.Profile = sketch20
pocket8.Length = 1
body2 = doc.addObject("PartDesign::Body", "Body001")

sketch21 = body2.newObject("Sketcher::SketchObject", "Sketch020")
sketch21.AttachmentSupport = (doc.getObject("YZ_Plane001"), [""])
sketch21.MapMode = "FlatFace"
sketch21.AttachmentOffset = App.Placement(App.Vector(0, 0, 370), App.Rotation())
add_polygon(sketch21, [(100, 235), (100, 249), (184, 249), (186, 235)])
sketch21.addConstraint(Sketcher.Constraint("Vertical", 0))
sketch21.addConstraint(Sketcher.Constraint("Horizontal", 1))
sketch21.addConstraint(Sketcher.Constraint("Horizontal", 3))
sketch21.addConstraint(Sketcher.Constraint("DistanceY", 0, 1, 0, 2, Q("14 mm")))
sketch21.addConstraint(Sketcher.Constraint("Angle", 2, Q("-80 deg")))
sketch21.addConstraint(Sketcher.Constraint("DistanceX", -1, 1, 0, 2, Q("100 mm")))
sketch21.addConstraint(Sketcher.Constraint("DistanceY", -1, 1, 0, 2, Q("249 mm")))
sketch21.addConstraint(Sketcher.Constraint("DistanceX", 3, 2, 3, 1, Q("86.403922 mm")))
pad13 = body2.newObject("PartDesign::Pad", "Pad012")
pad13.Profile = sketch21
pad13.Length = 1
body3 = doc.addObject("PartDesign::Body", "Body002")

sketch22 = body3.newObject("Sketcher::SketchObject", "Sketch021")
sketch22.AttachmentSupport = (doc.getObject("YZ_Plane002"), [""])
sketch22.MapMode = "FlatFace"
sketch22.AttachmentOffset = App.Placement(App.Vector(0, 0, -370), App.Rotation())
add_polygon(sketch22, [(100, 249), (100, 235), (186, 235), (184, 249)])
sketch22.addConstraint(Sketcher.Constraint("Vertical", 0))
sketch22.addConstraint(Sketcher.Constraint("Horizontal", 1))
sketch22.addConstraint(Sketcher.Constraint("Horizontal", 3))
sketch22.addConstraint(Sketcher.Constraint("DistanceY", 0, 2, 0, 1, Q("14 mm")))
sketch22.addConstraint(Sketcher.Constraint("Angle", 2, Q("100 deg")))
sketch22.addConstraint(Sketcher.Constraint("DistanceX", -1, 1, 0, 2, Q("100 mm")))
sketch22.addConstraint(Sketcher.Constraint("DistanceY", -1, 1, 0, 2, Q("235 mm")))
sketch22.addConstraint(Sketcher.Constraint("DistanceX", 1, 1, 1, 2, Q("86.403922 mm")))
pad14 = body3.newObject("PartDesign::Pad", "Pad013")
pad14.Profile = sketch22
pad14.Length = 1
pad14.Reversed = True
body4 = doc.addObject("PartDesign::Body", "Body003")

sketch23 = body4.newObject("Sketcher::SketchObject", "Sketch022")
sketch23.AttachmentSupport = (doc.getObject("XZ_Plane003"), [""])
sketch23.MapMode = "FlatFace"
sketch23.AttachmentOffset = App.Placement(App.Vector(0, 0, -224.710191), App.Rotation())
add_polygon(sketch23, [(-370, -75), (-370, -90), (370, -90), (370, -75)])
sketch23.addConstraint(Sketcher.Constraint("Vertical", 0))
sketch23.addConstraint(Sketcher.Constraint("Horizontal", 1))
sketch23.addConstraint(Sketcher.Constraint("Vertical", 2))
sketch23.addConstraint(Sketcher.Constraint("Horizontal", 3))
sketch23.addConstraint(Sketcher.Constraint("DistanceX", 1, 1, 1, 2, Q("740 mm")))
sketch23.addConstraint(Sketcher.Constraint("DistanceY", 0, 2, 0, 1, Q("15 mm")))
sketch23.addConstraint(Sketcher.Constraint("DistanceX", 0, 2, -1, 1, Q("370 mm")))
sketch23.addConstraint(Sketcher.Constraint("DistanceY", 0, 2, -1, 1, Q("90 mm")))
pad15 = body4.newObject("PartDesign::Pad", "Pad014")
pad15.Profile = sketch23
pad15.Length = 1
body5 = doc.addObject("PartDesign::Body", "Body004")

sketch24 = body5.newObject("Sketcher::SketchObject", "Sketch023")
sketch24.AttachmentSupport = (doc.getObject("XY_Plane004"), [""])
sketch24.MapMode = "FlatFace"
sketch24.AttachmentOffset = App.Placement(App.Vector(0, 0, -150), App.Rotation())
add_polygon(sketch24, [(399, 122), (399, 121), (-399, 121), (-399, 122)])
sketch24.addConstraint(Sketcher.Constraint("Vertical", 0))
sketch24.addConstraint(Sketcher.Constraint("Horizontal", 1))
sketch24.addConstraint(Sketcher.Constraint("Vertical", 2))
sketch24.addConstraint(Sketcher.Constraint("Horizontal", 3))
sketch24.addConstraint(Sketcher.Constraint("DistanceX", 1, 2, 1, 1, Q("798 mm")))
sketch24.addConstraint(Sketcher.Constraint("DistanceY", 0, 2, 0, 1, Q("1 mm")))
sketch24.addConstraint(Sketcher.Constraint("DistanceX", -1, 1, 0, 2, Q("399 mm")))
sketch24.addConstraint(Sketcher.Constraint("DistanceY", -1, 1, 0, 2, Q("121 mm")))
pad16 = body5.newObject("PartDesign::Pad", "Pad015")
pad16.Profile = sketch24
pad16.Length = 99
pad16.Reversed = True
body6 = doc.addObject("PartDesign::Body", "Body005")

sketch25 = body6.newObject("Sketcher::SketchObject", "Sketch024")
sketch25.AttachmentSupport = (doc.getObject("YZ_Plane005"), [""])
sketch25.MapMode = "FlatFace"
sketch25.AttachmentOffset = App.Placement(App.Vector(0, 0, -370), App.Rotation())
add_polygon(sketch25, [(249, -150), (240, -150), (240, -249), (249, -249)])
sketch25.addConstraint(Sketcher.Constraint("Horizontal", 0))
sketch25.addConstraint(Sketcher.Constraint("Vertical", 1))
sketch25.addConstraint(Sketcher.Constraint("Horizontal", 2))
sketch25.addConstraint(Sketcher.Constraint("Vertical", 3))
sketch25.addConstraint(Sketcher.Constraint("DistanceX", 0, 2, 0, 1, Q("9 mm")))
sketch25.addConstraint(Sketcher.Constraint("DistanceY", 1, 2, 1, 1, Q("99 mm")))
sketch25.addConstraint(Sketcher.Constraint("DistanceX", -1, 1, 0, 2, Q("240 mm")))
sketch25.addConstraint(Sketcher.Constraint("DistanceY", 0, 2, -1, 1, Q("150 mm")))
pad17 = body6.newObject("PartDesign::Pad", "Pad016")
pad17.Profile = sketch25
pad17.Length = 1
pad17.Reversed = True

sketch26 = body6.newObject("Sketcher::SketchObject", "Sketch025")
sketch26.AttachmentSupport = (doc.getObject("YZ_Plane005"), [""])
sketch26.MapMode = "FlatFace"
sketch26.AttachmentOffset = App.Placement(App.Vector(0, 0, -370), App.Rotation())
sketch26.addGeometry(Part.Circle(App.Vector(242, -160, 0), App.Vector(0, 0, 1), 1.5), False)
sketch26.addConstraint(Sketcher.Constraint("Diameter", 0, Q("3 mm")))
sketch26.addConstraint(Sketcher.Constraint("DistanceX", -1, 1, 0, 3, Q("242 mm")))
sketch26.addConstraint(Sketcher.Constraint("DistanceY", 0, 3, -1, 1, Q("160 mm")))
pocket9 = body6.newObject("PartDesign::Pocket", "Pocket008")
pocket9.Profile = sketch26
pocket9.Length = 1
body7 = doc.addObject("PartDesign::Body", "Body006")

sketch27 = body7.newObject("Sketcher::SketchObject", "Sketch026")
sketch27.AttachmentSupport = (doc.getObject("YZ_Plane006"), [""])
sketch27.MapMode = "FlatFace"
sketch27.AttachmentOffset = App.Placement(App.Vector(0, 0, 370), App.Rotation())
add_polygon(sketch27, [(249, -249), (240, -249), (240, -150), (249, -150)])
sketch27.addConstraint(Sketcher.Constraint("Horizontal", 0))
sketch27.addConstraint(Sketcher.Constraint("Vertical", 1))
sketch27.addConstraint(Sketcher.Constraint("Horizontal", 2))
sketch27.addConstraint(Sketcher.Constraint("Vertical", 3))
sketch27.addConstraint(Sketcher.Constraint("DistanceX", 0, 2, 0, 1, Q("9 mm")))
sketch27.addConstraint(Sketcher.Constraint("DistanceY", 1, 1, 1, 2, Q("99 mm")))
sketch27.addConstraint(Sketcher.Constraint("DistanceX", -1, 1, 0, 2, Q("240 mm")))
sketch27.addConstraint(Sketcher.Constraint("DistanceY", 0, 2, -1, 1, Q("249 mm")))
pad18 = body7.newObject("PartDesign::Pad", "Pad017")
pad18.Profile = sketch27
pad18.Length = 1
body8 = doc.addObject("PartDesign::Body", "Body007")

sketch28 = body8.newObject("Sketcher::SketchObject", "Sketch027")
sketch28.AttachmentSupport = (doc.getObject("YZ_Plane007"), [""])
sketch28.MapMode = "FlatFace"
sketch28.AttachmentOffset = App.Placement(App.Vector(0, 0, -370), App.Rotation())
add_polygon(sketch28, [(240, -239), (150, -239), (150, -249), (240, -249)])
sketch28.addConstraint(Sketcher.Constraint("Horizontal", 0))
sketch28.addConstraint(Sketcher.Constraint("Vertical", 1))
sketch28.addConstraint(Sketcher.Constraint("Horizontal", 2))
sketch28.addConstraint(Sketcher.Constraint("Vertical", 3))
sketch28.addConstraint(Sketcher.Constraint("DistanceX", 0, 2, 0, 1, Q("90 mm")))
sketch28.addConstraint(Sketcher.Constraint("DistanceY", 1, 2, 1, 1, Q("10 mm")))
sketch28.addConstraint(Sketcher.Constraint("DistanceX", -1, 1, 0, 2, Q("150 mm")))
sketch28.addConstraint(Sketcher.Constraint("DistanceY", 0, 2, -1, 1, Q("239 mm")))
pad19 = body8.newObject("PartDesign::Pad", "Pad018")
pad19.Profile = sketch28
pad19.Length = 1
pad19.Reversed = True
body9 = doc.addObject("PartDesign::Body", "Body008")

sketch29 = body9.newObject("Sketcher::SketchObject", "Sketch028")
sketch29.AttachmentSupport = (doc.getObject("XZ_Plane008"), [""])
sketch29.MapMode = "FlatFace"
sketch29.AttachmentOffset = App.Placement(App.Vector(0, 0, -150), App.Rotation())
add_polygon(sketch29, [(-370, -249), (-370, -239), (370, -239), (370, -249)])
sketch29.addConstraint(Sketcher.Constraint("Vertical", 0))
sketch29.addConstraint(Sketcher.Constraint("Horizontal", 1))
sketch29.addConstraint(Sketcher.Constraint("Vertical", 2))
sketch29.addConstraint(Sketcher.Constraint("Horizontal", 3))
sketch29.addConstraint(Sketcher.Constraint("DistanceX", 1, 1, 1, 2, Q("740 mm")))
sketch29.addConstraint(Sketcher.Constraint("DistanceY", 0, 1, 0, 2, Q("10 mm")))
sketch29.addConstraint(Sketcher.Constraint("DistanceX", 0, 2, -1, 1, Q("370 mm")))
sketch29.addConstraint(Sketcher.Constraint("DistanceY", 0, 2, -1, 1, Q("239 mm")))
pad20 = body9.newObject("PartDesign::Pad", "Pad019")
pad20.Profile = sketch29
pad20.Length = 1
body10 = doc.addObject("PartDesign::Body", "Body009")

sketch30 = body10.newObject("Sketcher::SketchObject", "Sketch029")
sketch30.AttachmentSupport = (doc.getObject("YZ_Plane009"), [""])
sketch30.MapMode = "FlatFace"
sketch30.AttachmentOffset = App.Placement(App.Vector(0, 0, 370), App.Rotation())
add_polygon(sketch30, [(240, -249), (150, -249), (150, -239), (240, -239)])
sketch30.addConstraint(Sketcher.Constraint("Horizontal", 0))
sketch30.addConstraint(Sketcher.Constraint("Vertical", 1))
sketch30.addConstraint(Sketcher.Constraint("Horizontal", 2))
sketch30.addConstraint(Sketcher.Constraint("Vertical", 3))
sketch30.addConstraint(Sketcher.Constraint("DistanceX", 0, 2, 0, 1, Q("90 mm")))
sketch30.addConstraint(Sketcher.Constraint("DistanceY", 1, 1, 1, 2, Q("10 mm")))
sketch30.addConstraint(Sketcher.Constraint("DistanceX", -1, 1, 0, 2, Q("150 mm")))
sketch30.addConstraint(Sketcher.Constraint("DistanceY", 0, 2, -1, 1, Q("249 mm")))
pad21 = body10.newObject("PartDesign::Pad", "Pad020")
pad21.Profile = sketch30
pad21.Length = 1

doc.recompute()
